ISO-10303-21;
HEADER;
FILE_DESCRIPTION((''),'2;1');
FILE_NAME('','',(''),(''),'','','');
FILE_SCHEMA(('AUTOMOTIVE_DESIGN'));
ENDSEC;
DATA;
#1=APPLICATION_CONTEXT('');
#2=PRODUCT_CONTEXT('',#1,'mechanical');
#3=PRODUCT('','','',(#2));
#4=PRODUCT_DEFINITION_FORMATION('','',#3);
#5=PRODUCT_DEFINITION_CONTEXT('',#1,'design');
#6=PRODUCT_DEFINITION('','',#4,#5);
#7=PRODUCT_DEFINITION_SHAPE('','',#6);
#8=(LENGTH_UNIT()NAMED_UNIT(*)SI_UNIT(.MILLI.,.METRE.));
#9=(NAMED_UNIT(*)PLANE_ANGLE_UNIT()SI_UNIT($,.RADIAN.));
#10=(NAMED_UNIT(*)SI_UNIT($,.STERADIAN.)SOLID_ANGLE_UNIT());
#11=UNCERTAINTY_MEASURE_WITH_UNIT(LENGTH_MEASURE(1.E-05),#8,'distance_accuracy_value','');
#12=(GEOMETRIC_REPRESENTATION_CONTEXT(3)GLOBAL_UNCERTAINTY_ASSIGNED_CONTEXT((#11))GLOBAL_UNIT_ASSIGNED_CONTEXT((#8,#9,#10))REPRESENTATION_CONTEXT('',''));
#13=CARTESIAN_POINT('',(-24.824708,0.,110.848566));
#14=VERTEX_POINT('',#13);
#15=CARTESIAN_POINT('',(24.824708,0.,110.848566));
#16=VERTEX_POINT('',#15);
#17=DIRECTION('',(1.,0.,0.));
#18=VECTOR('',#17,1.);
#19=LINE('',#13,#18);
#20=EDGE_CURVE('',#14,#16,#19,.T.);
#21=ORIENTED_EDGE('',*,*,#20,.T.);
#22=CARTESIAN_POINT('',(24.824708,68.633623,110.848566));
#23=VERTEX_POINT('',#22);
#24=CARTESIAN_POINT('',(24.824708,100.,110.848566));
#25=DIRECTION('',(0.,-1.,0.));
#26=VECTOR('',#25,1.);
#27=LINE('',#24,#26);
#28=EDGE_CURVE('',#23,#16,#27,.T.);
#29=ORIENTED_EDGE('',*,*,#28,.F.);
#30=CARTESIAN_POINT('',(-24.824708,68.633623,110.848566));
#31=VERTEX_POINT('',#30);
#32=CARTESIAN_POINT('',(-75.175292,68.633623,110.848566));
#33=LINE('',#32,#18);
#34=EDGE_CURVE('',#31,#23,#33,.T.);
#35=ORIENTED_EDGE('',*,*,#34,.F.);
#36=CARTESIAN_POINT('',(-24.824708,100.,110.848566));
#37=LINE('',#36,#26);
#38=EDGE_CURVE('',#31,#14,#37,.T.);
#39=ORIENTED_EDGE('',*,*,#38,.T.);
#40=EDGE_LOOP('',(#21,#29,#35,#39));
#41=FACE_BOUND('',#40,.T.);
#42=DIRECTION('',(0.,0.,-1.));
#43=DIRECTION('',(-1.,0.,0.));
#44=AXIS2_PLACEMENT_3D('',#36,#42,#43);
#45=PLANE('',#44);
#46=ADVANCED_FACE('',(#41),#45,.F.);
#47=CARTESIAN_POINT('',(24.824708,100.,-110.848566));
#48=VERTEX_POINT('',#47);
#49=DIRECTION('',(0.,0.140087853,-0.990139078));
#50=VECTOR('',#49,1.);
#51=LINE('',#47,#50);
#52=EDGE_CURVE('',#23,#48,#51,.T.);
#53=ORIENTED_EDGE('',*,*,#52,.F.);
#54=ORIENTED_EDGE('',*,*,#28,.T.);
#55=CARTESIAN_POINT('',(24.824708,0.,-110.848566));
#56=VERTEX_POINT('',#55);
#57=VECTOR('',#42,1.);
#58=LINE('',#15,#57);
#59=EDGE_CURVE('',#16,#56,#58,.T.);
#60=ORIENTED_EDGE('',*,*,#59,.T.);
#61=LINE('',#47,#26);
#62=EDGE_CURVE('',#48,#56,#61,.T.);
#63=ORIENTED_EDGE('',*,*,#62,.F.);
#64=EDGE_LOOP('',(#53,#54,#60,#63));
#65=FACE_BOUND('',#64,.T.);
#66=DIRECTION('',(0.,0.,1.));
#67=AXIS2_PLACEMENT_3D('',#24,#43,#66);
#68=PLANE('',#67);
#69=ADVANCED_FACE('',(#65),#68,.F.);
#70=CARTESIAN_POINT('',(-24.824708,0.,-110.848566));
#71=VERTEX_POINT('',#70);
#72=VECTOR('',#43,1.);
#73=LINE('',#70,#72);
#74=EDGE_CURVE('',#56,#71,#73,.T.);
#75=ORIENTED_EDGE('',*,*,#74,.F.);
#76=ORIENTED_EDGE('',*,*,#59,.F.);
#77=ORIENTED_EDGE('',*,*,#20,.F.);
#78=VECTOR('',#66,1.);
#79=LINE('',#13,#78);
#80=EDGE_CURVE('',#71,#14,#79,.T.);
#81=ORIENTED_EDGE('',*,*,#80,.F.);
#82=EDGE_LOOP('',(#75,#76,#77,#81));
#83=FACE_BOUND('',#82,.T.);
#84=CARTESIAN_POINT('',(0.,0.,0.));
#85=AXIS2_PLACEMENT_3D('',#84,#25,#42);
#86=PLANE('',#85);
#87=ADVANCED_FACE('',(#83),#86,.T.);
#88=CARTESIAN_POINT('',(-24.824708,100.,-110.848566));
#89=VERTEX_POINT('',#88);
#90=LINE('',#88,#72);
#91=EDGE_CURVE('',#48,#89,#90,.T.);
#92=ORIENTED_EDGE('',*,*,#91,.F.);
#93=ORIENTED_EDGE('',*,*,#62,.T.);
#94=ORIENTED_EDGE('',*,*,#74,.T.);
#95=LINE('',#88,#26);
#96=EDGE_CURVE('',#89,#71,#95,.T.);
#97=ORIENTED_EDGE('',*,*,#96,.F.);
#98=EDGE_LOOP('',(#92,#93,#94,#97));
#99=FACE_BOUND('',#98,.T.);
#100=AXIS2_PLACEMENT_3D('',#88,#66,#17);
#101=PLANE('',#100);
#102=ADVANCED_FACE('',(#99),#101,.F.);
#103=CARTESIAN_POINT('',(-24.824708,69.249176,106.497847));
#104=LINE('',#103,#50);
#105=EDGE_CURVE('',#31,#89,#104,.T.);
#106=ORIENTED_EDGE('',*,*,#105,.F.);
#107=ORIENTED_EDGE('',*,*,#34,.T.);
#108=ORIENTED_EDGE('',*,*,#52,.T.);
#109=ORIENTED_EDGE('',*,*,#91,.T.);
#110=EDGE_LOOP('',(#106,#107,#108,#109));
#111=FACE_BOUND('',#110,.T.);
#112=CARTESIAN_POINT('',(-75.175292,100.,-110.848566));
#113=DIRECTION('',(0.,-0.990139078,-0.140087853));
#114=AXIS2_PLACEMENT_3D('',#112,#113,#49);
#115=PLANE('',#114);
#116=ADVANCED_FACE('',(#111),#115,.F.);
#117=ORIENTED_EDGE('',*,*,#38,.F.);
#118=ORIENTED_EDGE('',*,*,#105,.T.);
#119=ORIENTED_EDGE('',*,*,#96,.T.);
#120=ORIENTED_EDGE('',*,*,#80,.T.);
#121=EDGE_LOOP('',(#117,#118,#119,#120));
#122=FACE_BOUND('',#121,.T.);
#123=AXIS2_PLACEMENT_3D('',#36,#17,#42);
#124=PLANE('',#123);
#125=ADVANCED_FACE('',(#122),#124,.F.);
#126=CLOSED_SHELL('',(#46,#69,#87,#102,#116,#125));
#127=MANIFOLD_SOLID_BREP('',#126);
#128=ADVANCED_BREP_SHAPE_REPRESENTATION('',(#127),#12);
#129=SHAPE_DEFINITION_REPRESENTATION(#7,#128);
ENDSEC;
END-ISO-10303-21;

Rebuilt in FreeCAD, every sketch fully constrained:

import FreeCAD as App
import Part
import Sketcher
from FreeCAD import Vector


def add_polygon(sketch, points):
    """Adds a closed chain of lines whose ends are joined by coincident constraints."""
    first, n = sketch.GeometryCount, len(points)
    for a, b in zip(points, points[1:] + points[:1]):
        sketch.addGeometry(Part.LineSegment(App.Vector(*a, 0), App.Vector(*b, 0)), False)
    for i in range(n):
        sketch.addConstraint(Sketcher.Constraint("Coincident", first + i, 2, first + (i + 1) % n, 1))

doc = App.newDocument("Part")
body = doc.addObject("PartDesign::Body", "Body")

# Sketch on XZ plane
sketch1 = doc.addObject("Sketcher::SketchObject", "Sketch")
body.addObject(sketch1)
sketch1.AttachmentSupport = (doc.XZ_Plane, [""])
sketch1.MapMode = "FlatFace"
add_polygon(sketch1, [(-25, -111), (-25, 111), (25, 111), (25, -111)])  # lines 0-3
sketch1.addConstraint(Sketcher.Constraint("Vertical", 0))
sketch1.addConstraint(Sketcher.Constraint("Horizontal", 1))
sketch1.addConstraint(Sketcher.Constraint("Vertical", 2))
sketch1.addConstraint(Sketcher.Constraint("Horizontal", 3))
sketch1.addConstraint(Sketcher.Constraint("Symmetric", 0, 2, 2, 2, -1, 1))
sketch1.addConstraint(Sketcher.Constraint("DistanceX", 1, 1, 1, 2, 49.649416))
sketch1.addConstraint(Sketcher.Constraint("DistanceY", 0, 1, 0, 2, 221.697133))
pad1 = doc.addObject("PartDesign::Pad", "Pad")
body.addObject(pad1)
pad1.Profile = sketch1
pad1.Length = 100
pad1.Reversed = True

# Sketch on YZ plane
sketch2 = doc.addObject("Sketcher::SketchObject", "Sketch001")
body.addObject(sketch2)
sketch2.AttachmentSupport = (doc.YZ_Plane, [""])
sketch2.MapMode = "FlatFace"
sketch2.AttachmentOffset = App.Placement(Vector(0, 0, 24.824708), App.Rotation())
add_polygon(sketch2, [(69, 111), (100, -111), (100, 111)])  # lines 0-2
sketch2.addConstraint(Sketcher.Constraint("Vertical", 1))
sketch2.addConstraint(Sketcher.Constraint("Horizontal", 2))
sketch2.addConstraint(Sketcher.Constraint("DistanceX", -1, 1, 0, 2, 100.0))
sketch2.addConstraint(Sketcher.Constraint("DistanceX", 2, 2, 2, 1, 31.366377))
sketch2.addConstraint(Sketcher.Constraint("DistanceY", 1, 1, 1, 2, 221.697133))
sketch2.addConstraint(Sketcher.Constraint("DistanceY", 0, 2, -1, 1, 110.848566))
pocket1 = doc.addObject("PartDesign::Pocket", "Pocket")
body.addObject(pocket1)
pocket1.Profile = sketch2
pocket1.Length = 100

doc.recompute()
